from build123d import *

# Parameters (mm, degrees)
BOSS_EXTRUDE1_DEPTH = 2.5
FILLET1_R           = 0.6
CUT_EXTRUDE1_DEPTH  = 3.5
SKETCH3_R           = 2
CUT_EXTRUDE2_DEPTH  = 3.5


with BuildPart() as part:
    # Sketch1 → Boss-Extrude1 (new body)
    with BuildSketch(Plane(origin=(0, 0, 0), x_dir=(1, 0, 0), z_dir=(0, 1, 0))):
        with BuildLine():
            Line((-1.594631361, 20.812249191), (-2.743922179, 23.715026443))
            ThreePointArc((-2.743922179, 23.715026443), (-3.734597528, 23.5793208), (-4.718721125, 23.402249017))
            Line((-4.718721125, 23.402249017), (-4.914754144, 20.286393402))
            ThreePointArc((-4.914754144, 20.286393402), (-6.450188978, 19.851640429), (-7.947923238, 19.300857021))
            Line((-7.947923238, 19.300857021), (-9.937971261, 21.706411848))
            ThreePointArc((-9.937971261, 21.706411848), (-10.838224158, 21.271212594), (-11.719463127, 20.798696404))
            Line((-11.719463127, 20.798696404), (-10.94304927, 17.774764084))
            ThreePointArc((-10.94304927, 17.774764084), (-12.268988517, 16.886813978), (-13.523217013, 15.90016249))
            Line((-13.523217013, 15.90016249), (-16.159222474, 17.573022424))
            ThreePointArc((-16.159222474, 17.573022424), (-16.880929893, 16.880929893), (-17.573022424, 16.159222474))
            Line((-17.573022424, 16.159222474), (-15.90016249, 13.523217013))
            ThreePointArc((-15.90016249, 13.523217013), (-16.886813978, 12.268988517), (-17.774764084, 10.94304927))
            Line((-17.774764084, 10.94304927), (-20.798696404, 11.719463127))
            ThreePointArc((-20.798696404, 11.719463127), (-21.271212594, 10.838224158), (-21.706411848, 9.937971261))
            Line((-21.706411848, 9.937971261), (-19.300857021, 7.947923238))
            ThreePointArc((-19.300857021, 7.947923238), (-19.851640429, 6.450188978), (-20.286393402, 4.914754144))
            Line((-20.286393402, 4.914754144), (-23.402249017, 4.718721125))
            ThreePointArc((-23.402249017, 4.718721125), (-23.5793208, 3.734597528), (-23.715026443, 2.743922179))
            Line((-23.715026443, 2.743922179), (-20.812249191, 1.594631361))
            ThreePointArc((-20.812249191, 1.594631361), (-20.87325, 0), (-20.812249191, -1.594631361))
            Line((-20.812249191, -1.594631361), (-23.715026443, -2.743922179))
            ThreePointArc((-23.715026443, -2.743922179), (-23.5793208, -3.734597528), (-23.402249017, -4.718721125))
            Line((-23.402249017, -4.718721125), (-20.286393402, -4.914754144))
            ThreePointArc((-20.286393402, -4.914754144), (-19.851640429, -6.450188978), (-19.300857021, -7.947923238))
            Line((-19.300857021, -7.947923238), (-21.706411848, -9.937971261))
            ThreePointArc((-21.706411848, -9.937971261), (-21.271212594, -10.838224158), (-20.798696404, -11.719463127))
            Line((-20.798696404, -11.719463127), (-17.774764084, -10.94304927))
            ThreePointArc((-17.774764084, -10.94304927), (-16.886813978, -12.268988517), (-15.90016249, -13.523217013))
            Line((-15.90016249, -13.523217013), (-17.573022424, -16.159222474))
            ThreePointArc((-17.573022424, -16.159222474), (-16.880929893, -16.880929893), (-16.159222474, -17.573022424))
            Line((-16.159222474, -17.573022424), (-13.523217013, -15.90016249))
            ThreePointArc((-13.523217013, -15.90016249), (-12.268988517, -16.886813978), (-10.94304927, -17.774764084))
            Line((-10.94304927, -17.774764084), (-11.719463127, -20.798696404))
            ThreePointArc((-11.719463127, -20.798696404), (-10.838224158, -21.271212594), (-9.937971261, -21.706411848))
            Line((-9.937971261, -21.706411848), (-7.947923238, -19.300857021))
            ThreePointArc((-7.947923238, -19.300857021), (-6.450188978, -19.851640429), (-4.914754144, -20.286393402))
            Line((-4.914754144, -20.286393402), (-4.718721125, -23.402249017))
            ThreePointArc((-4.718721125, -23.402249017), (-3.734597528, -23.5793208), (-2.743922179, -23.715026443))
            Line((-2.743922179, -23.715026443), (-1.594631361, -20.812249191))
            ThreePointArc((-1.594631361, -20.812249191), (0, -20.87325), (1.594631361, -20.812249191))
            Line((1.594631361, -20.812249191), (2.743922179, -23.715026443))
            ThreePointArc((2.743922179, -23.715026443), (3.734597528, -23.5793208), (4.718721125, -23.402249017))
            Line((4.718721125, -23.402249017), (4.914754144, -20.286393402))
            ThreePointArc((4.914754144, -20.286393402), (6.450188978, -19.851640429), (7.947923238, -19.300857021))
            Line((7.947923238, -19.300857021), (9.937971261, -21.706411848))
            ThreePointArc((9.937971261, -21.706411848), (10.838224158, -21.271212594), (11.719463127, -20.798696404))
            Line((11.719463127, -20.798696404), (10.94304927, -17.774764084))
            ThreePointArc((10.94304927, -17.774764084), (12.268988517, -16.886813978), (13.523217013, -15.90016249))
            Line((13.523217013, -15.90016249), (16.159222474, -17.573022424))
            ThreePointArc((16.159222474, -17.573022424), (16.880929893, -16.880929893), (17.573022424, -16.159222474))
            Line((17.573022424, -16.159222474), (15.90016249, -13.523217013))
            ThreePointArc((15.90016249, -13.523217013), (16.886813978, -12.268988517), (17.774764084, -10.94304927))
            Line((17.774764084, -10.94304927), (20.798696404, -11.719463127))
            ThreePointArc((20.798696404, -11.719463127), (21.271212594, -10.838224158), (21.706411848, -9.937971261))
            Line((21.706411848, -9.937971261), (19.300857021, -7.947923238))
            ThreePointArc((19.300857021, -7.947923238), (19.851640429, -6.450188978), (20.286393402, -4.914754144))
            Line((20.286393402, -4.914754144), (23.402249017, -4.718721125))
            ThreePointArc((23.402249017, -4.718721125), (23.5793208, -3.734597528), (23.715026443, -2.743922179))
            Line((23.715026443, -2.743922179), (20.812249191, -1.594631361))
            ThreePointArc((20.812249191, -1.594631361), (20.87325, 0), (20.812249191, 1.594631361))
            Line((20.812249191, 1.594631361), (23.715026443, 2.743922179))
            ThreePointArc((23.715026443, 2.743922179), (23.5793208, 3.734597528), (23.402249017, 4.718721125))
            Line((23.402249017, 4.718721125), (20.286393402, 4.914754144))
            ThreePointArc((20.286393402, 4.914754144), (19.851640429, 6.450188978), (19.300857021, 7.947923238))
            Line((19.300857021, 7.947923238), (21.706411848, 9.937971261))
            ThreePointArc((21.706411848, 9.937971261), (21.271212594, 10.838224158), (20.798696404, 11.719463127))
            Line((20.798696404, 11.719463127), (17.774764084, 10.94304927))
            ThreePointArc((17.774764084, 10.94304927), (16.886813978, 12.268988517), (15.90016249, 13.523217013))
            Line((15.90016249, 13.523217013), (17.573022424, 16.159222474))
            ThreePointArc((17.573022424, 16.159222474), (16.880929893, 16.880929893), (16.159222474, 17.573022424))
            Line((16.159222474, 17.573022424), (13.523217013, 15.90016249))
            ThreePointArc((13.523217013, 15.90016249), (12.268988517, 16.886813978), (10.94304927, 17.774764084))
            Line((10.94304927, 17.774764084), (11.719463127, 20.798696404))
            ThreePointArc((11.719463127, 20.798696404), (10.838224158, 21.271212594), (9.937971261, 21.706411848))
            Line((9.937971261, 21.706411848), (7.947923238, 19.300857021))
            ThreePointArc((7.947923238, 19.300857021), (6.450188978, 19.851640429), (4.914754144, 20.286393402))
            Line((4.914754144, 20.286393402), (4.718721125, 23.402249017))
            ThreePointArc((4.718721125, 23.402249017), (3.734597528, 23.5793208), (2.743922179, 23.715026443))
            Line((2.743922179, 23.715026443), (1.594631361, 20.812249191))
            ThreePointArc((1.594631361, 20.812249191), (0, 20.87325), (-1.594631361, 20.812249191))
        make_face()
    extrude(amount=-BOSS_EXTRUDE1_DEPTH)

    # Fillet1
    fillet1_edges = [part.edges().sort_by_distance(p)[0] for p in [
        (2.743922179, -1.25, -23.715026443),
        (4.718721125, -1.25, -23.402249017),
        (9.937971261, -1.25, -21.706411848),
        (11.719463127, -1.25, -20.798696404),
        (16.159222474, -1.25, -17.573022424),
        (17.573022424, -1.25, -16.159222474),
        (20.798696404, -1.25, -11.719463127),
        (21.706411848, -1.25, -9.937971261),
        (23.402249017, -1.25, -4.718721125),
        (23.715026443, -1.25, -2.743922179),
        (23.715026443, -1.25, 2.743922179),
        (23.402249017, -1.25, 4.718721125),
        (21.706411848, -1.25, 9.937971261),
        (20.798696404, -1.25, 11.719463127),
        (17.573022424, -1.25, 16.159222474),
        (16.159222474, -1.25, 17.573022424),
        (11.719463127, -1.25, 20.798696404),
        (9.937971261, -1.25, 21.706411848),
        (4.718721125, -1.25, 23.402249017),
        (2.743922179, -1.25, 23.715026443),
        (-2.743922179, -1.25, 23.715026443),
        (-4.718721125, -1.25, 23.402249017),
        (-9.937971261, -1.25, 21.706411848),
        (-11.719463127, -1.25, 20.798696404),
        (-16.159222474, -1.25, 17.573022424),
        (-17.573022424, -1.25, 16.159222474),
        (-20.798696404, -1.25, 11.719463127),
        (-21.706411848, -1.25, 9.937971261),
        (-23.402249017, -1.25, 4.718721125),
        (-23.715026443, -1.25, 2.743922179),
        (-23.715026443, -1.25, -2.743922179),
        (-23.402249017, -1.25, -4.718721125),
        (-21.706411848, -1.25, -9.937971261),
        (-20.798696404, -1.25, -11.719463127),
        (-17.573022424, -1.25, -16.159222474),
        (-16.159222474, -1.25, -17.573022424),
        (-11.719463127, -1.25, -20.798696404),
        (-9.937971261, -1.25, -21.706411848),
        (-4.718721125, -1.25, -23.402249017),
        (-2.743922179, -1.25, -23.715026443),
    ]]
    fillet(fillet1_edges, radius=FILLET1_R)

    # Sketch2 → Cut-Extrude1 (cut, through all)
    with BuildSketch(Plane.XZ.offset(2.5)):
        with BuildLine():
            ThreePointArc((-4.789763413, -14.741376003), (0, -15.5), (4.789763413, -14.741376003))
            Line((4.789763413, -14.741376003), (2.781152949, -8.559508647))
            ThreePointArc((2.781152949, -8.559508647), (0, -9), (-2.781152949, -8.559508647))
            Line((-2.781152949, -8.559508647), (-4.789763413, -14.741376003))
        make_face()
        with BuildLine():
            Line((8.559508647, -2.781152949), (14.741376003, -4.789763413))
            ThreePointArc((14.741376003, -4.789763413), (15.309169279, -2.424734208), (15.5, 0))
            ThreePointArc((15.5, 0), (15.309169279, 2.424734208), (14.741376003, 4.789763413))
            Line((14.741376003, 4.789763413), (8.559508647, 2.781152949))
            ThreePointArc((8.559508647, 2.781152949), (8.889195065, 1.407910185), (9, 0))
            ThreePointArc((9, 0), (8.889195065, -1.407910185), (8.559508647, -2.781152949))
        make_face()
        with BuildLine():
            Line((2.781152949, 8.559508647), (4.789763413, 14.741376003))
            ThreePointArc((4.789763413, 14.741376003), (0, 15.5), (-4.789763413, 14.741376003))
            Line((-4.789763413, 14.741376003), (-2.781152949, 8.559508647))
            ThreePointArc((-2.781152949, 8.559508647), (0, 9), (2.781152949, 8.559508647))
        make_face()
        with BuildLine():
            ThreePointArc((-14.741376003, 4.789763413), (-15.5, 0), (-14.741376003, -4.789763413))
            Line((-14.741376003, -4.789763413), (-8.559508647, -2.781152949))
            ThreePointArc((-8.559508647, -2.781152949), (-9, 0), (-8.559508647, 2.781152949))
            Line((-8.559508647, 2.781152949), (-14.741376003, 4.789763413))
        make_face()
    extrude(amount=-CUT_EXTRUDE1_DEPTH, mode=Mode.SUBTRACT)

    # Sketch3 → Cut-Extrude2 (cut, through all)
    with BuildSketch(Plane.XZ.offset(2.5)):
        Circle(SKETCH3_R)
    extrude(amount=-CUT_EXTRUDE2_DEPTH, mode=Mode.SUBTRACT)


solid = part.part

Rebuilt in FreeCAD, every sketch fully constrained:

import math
import FreeCAD as App
import Part
import Sketcher
Q = App.Units.Quantity


def edges_at(feature, points):
    """Names of the edges that pass closest to the given points."""
    edges = feature.Shape.Edges
    near = lambda p: min(range(len(edges)), key=lambda i: edges[i].distToShape(Part.Vertex(*p))[0])
    return sorted({f"Edge{near(p) + 1}" for p in points})

doc = App.newDocument("Part")
body = doc.addObject("PartDesign::Body", "Body")

# Sketch on XZ plane
sketch1 = body.newObject("Sketcher::SketchObject", "Sketch")
sketch1.AttachmentSupport = (doc.getObject("XZ_Plane"), [""])
sketch1.MapMode = "FlatFace"
sketch1.addGeometry(Part.LineSegment(App.Vector(-1.6, -20.8, 0), App.Vector(-2.7, -23.7, 0)), False)
sketch1.addGeometry(Part.ArcOfCircle(Part.Circle(App.Vector(0, 0, 0), App.Vector(0, 0, 1), 23.9), math.radians(-101.4), math.radians(-96.6)), False)
sketch1.addGeometry(Part.LineSegment(App.Vector(-4.7, -23.4, 0), App.Vector(-4.9, -20.3, 0)), False)
sketch1.addGeometry(Part.ArcOfCircle(Part.Circle(App.Vector(0, 0, 0), App.Vector(0, 0, 1), 20.9), math.radians(-112.38), math.radians(-103.62)), False)
sketch1.addGeometry(Part.LineSegment(App.Vector(-7.9, -19.3, 0), App.Vector(-9.9, -21.7, 0)), False)
sketch1.addGeometry(Part.ArcOfCircle(Part.Circle(App.Vector(0, 0, 0), App.Vector(0, 0, 1), 23.9), math.radians(-119.4), math.radians(-114.6)), False)
sketch1.addGeometry(Part.LineSegment(App.Vector(-11.7, -20.8, 0), App.Vector(-10.9, -17.8, 0)), False)
sketch1.addGeometry(Part.ArcOfCircle(Part.Circle(App.Vector(0, 0, 0), App.Vector(0, 0, 1), 20.9), math.radians(-130.38), math.radians(-121.62)), False)
sketch1.addGeometry(Part.LineSegment(App.Vector(-13.5, -15.9, 0), App.Vector(-16.2, -17.6, 0)), False)
sketch1.addGeometry(Part.ArcOfCircle(Part.Circle(App.Vector(0, 0, 0), App.Vector(0, 0, 1), 23.9), math.radians(-137.4), math.radians(-132.6)), False)
sketch1.addGeometry(Part.LineSegment(App.Vector(-17.6, -16.2, 0), App.Vector(-15.9, -13.5, 0)), False)
sketch1.addGeometry(Part.ArcOfCircle(Part.Circle(App.Vector(0, 0, 0), App.Vector(0, 0, 1), 20.9), math.radians(-148.38), math.radians(-139.62)), False)
sketch1.addGeometry(Part.LineSegment(App.Vector(-17.8, -10.9, 0), App.Vector(-20.8, -11.7, 0)), False)
sketch1.addGeometry(Part.ArcOfCircle(Part.Circle(App.Vector(0, 0, 0), App.Vector(0, 0, 1), 23.9), math.radians(-155.4), math.radians(-150.6)), False)
sketch1.addGeometry(Part.LineSegment(App.Vector(-21.7, -9.9, 0), App.Vector(-19.3, -7.9, 0)), False)
sketch1.addGeometry(Part.ArcOfCircle(Part.Circle(App.Vector(0, 0, 0), App.Vector(0, 0, 1), 20.9), math.radians(-166.38), math.radians(-157.62)), False)
sketch1.addGeometry(Part.LineSegment(App.Vector(-20.3, -4.9, 0), App.Vector(-23.4, -4.7, 0)), False)
sketch1.addGeometry(Part.ArcOfCircle(Part.Circle(App.Vector(0, 0, 0), App.Vector(0, 0, 1), 23.9), math.radians(-173.4), math.radians(-168.6)), False)
sketch1.addGeometry(Part.LineSegment(App.Vector(-23.7, -2.7, 0), App.Vector(-20.8, -1.6, 0)), False)
sketch1.addGeometry(Part.ArcOfCircle(Part.Circle(App.Vector(0, 0, 0), App.Vector(0, 0, 1), 20.9), math.radians(175.62), math.radians(184.38)), False)
sketch1.addGeometry(Part.LineSegment(App.Vector(-20.8, 1.6, 0), App.Vector(-23.7, 2.7, 0)), False)
sketch1.addGeometry(Part.ArcOfCircle(Part.Circle(App.Vector(0, 0, 0), App.Vector(0, 0, 1), 23.9), math.radians(168.6), math.radians(173.4)), False)
sketch1.addGeometry(Part.LineSegment(App.Vector(-23.4, 4.7, 0), App.Vector(-20.3, 4.9, 0)), False)
sketch1.addGeometry(Part.ArcOfCircle(Part.Circle(App.Vector(0, 0, 0), App.Vector(0, 0, 1), 20.9), math.radians(157.62), math.radians(166.38)), False)
sketch1.addGeometry(Part.LineSegment(App.Vector(-19.3, 7.9, 0), App.Vector(-21.7, 9.9, 0)), False)
sketch1.addGeometry(Part.ArcOfCircle(Part.Circle(App.Vector(0, 0, 0), App.Vector(0, 0, 1), 23.9), math.radians(150.6), math.radians(155.4)), False)
sketch1.addGeometry(Part.LineSegment(App.Vector(-20.8, 11.7, 0), App.Vector(-17.8, 10.9, 0)), False)
sketch1.addGeometry(Part.ArcOfCircle(Part.Circle(App.Vector(0, 0, 0), App.Vector(0, 0, 1), 20.9), math.radians(139.62), math.radians(148.38)), False)
sketch1.addGeometry(Part.LineSegment(App.Vector(-15.9, 13.5, 0), App.Vector(-17.6, 16.2, 0)), False)
sketch1.addGeometry(Part.ArcOfCircle(Part.Circle(App.Vector(0, 0, 0), App.Vector(0, 0, 1), 23.9), math.radians(132.6), math.radians(137.4)), False)
sketch1.addGeometry(Part.LineSegment(App.Vector(-16.2, 17.6, 0), App.Vector(-13.5, 15.9, 0)), False)
sketch1.addGeometry(Part.ArcOfCircle(Part.Circle(App.Vector(0, 0, 0), App.Vector(0, 0, 1), 20.9), math.radians(121.62), math.radians(130.38)), False)
sketch1.addGeometry(Part.LineSegment(App.Vector(-10.9, 17.8, 0), App.Vector(-11.7, 20.8, 0)), False)
sketch1.addGeometry(Part.ArcOfCircle(Part.Circle(App.Vector(0, 0, 0), App.Vector(0, 0, 1), 23.9), math.radians(114.6), math.radians(119.4)), False)
sketch1.addGeometry(Part.LineSegment(App.Vector(-9.9, 21.7, 0), App.Vector(-7.9, 19.3, 0)), False)
sketch1.addGeometry(Part.ArcOfCircle(Part.Circle(App.Vector(0, 0, 0), App.Vector(0, 0, 1), 20.9), math.radians(103.62), math.radians(112.38)), False)
sketch1.addGeometry(Part.LineSegment(App.Vector(-4.9, 20.3, 0), App.Vector(-4.7, 23.4, 0)), False)
sketch1.addGeometry(Part.ArcOfCircle(Part.Circle(App.Vector(0, 0, 0), App.Vector(0, 0, 1), 23.9), math.radians(96.6), math.radians(101.4)), False)
sketch1.addGeometry(Part.LineSegment(App.Vector(-2.7, 23.7, 0), App.Vector(-1.6, 20.8, 0)), False)
sketch1.addGeometry(Part.ArcOfCircle(Part.Circle(App.Vector(0, 0, 0), App.Vector(0, 0, 1), 20.9), math.radians(85.62), math.radians(94.38)), False)
sketch1.addGeometry(Part.LineSegment(App.Vector(1.6, 20.8, 0), App.Vector(2.7, 23.7, 0)), False)
sketch1.addGeometry(Part.ArcOfCircle(Part.Circle(App.Vector(0, 0, 0), App.Vector(0, 0, 1), 23.9), math.radians(78.6), math.radians(83.4)), False)
sketch1.addGeometry(Part.LineSegment(App.Vector(4.7, 23.4, 0), App.Vector(4.9, 20.3, 0)), False)
sketch1.addGeometry(Part.ArcOfCircle(Part.Circle(App.Vector(0, 0, 0), App.Vector(0, 0, 1), 20.9), math.radians(67.62), math.radians(76.38)), False)
sketch1.addGeometry(Part.LineSegment(App.Vector(7.9, 19.3, 0), App.Vector(9.9, 21.7, 0)), False)
sketch1.addGeometry(Part.ArcOfCircle(Part.Circle(App.Vector(0, 0, 0), App.Vector(0, 0, 1), 23.9), math.radians(60.6), math.radians(65.4)), False)
sketch1.addGeometry(Part.LineSegment(App.Vector(11.7, 20.8, 0), App.Vector(10.9, 17.8, 0)), False)
sketch1.addGeometry(Part.ArcOfCircle(Part.Circle(App.Vector(0, 0, 0), App.Vector(0, 0, 1), 20.9), math.radians(49.62), math.radians(58.38)), False)
sketch1.addGeometry(Part.LineSegment(App.Vector(13.5, 15.9, 0), App.Vector(16.2, 17.6, 0)), False)
sketch1.addGeometry(Part.ArcOfCircle(Part.Circle(App.Vector(0, 0, 0), App.Vector(0, 0, 1), 23.9), math.radians(42.6), math.radians(47.4)), False)
sketch1.addGeometry(Part.LineSegment(App.Vector(17.6, 16.2, 0), App.Vector(15.9, 13.5, 0)), False)
sketch1.addGeometry(Part.ArcOfCircle(Part.Circle(App.Vector(0, 0, 0), App.Vector(0, 0, 1), 20.9), math.radians(31.62), math.radians(40.38)), False)
sketch1.addGeometry(Part.LineSegment(App.Vector(17.8, 10.9, 0), App.Vector(20.8, 11.7, 0)), False)
sketch1.addGeometry(Part.ArcOfCircle(Part.Circle(App.Vector(0, 0, 0), App.Vector(0, 0, 1), 23.9), math.radians(24.6), math.radians(29.4)), False)
sketch1.addGeometry(Part.LineSegment(App.Vector(21.7, 9.9, 0), App.Vector(19.3, 7.9, 0)), False)
sketch1.addGeometry(Part.ArcOfCircle(Part.Circle(App.Vector(0, 0, 0), App.Vector(0, 0, 1), 20.9), math.radians(13.62), math.radians(22.38)), False)
sketch1.addGeometry(Part.LineSegment(App.Vector(20.3, 4.9, 0), App.Vector(23.4, 4.7, 0)), False)
sketch1.addGeometry(Part.ArcOfCircle(Part.Circle(App.Vector(0, 0, 0), App.Vector(0, 0, 1), 23.9), math.radians(6.6), math.radians(11.4)), False)
sketch1.addGeometry(Part.LineSegment(App.Vector(23.7, 2.7, 0), App.Vector(20.8, 1.6, 0)), False)
sketch1.addGeometry(Part.ArcOfCircle(Part.Circle(App.Vector(0, 0, 0), App.Vector(0, 0, 1), 20.9), math.radians(-4.38), math.radians(4.38)), False)
sketch1.addGeometry(Part.LineSegment(App.Vector(20.8, -1.6, 0), App.Vector(23.7, -2.7, 0)), False)
sketch1.addGeometry(Part.ArcOfCircle(Part.Circle(App.Vector(0, 0, 0), App.Vector(0, 0, 1), 23.9), math.radians(-11.4), math.radians(-6.6)), False)
sketch1.addGeometry(Part.LineSegment(App.Vector(23.4, -4.7, 0), App.Vector(20.3, -4.9, 0)), False)
sketch1.addGeometry(Part.ArcOfCircle(Part.Circle(App.Vector(0, 0, 0), App.Vector(0, 0, 1), 20.9), math.radians(-22.38), math.radians(-13.62)), False)
sketch1.addGeometry(Part.LineSegment(App.Vector(19.3, -7.9, 0), App.Vector(21.7, -9.9, 0)), False)
sketch1.addGeometry(Part.ArcOfCircle(Part.Circle(App.Vector(0, 0, 0), App.Vector(0, 0, 1), 23.9), math.radians(-29.4), math.radians(-24.6)), False)
sketch1.addGeometry(Part.LineSegment(App.Vector(20.8, -11.7, 0), App.Vector(17.8, -10.9, 0)), False)
sketch1.addGeometry(Part.ArcOfCircle(Part.Circle(App.Vector(0, 0, 0), App.Vector(0, 0, 1), 20.9), math.radians(-40.38), math.radians(-31.62)), False)
sketch1.addGeometry(Part.LineSegment(App.Vector(15.9, -13.5, 0), App.Vector(17.6, -16.2, 0)), False)
sketch1.addGeometry(Part.ArcOfCircle(Part.Circle(App.Vector(0, 0, 0), App.Vector(0, 0, 1), 23.9), math.radians(-47.4), math.radians(-42.6)), False)
sketch1.addGeometry(Part.LineSegment(App.Vector(16.2, -17.6, 0), App.Vector(13.5, -15.9, 0)), False)
sketch1.addGeometry(Part.ArcOfCircle(Part.Circle(App.Vector(0, 0, 0), App.Vector(0, 0, 1), 20.9), math.radians(-58.38), math.radians(-49.62)), False)
sketch1.addGeometry(Part.LineSegment(App.Vector(10.9, -17.8, 0), App.Vector(11.7, -20.8, 0)), False)
sketch1.addGeometry(Part.ArcOfCircle(Part.Circle(App.Vector(0, 0, 0), App.Vector(0, 0, 1), 23.9), math.radians(-65.4), math.radians(-60.6)), False)
sketch1.addGeometry(Part.LineSegment(App.Vector(9.9, -21.7, 0), App.Vector(7.9, -19.3, 0)), False)
sketch1.addGeometry(Part.ArcOfCircle(Part.Circle(App.Vector(0, 0, 0), App.Vector(0, 0, 1), 20.9), math.radians(-76.38), math.radians(-67.62)), False)
sketch1.addGeometry(Part.LineSegment(App.Vector(4.9, -20.3, 0), App.Vector(4.7, -23.4, 0)), False)
sketch1.addGeometry(Part.ArcOfCircle(Part.Circle(App.Vector(0, 0, 0), App.Vector(0, 0, 1), 23.9), math.radians(-83.4), math.radians(-78.6)), False)
sketch1.addGeometry(Part.LineSegment(App.Vector(2.7, -23.7, 0), App.Vector(1.6, -20.8, 0)), False)
sketch1.addGeometry(Part.ArcOfCircle(Part.Circle(App.Vector(0, 0, 0), App.Vector(0, 0, 1), 20.9), math.radians(-94.38), math.radians(-85.62)), False)
sketch1.addConstraint(Sketcher.Constraint("Coincident", 0, 2, 1, 2))
sketch1.addConstraint(Sketcher.Constraint("Coincident", 1, 1, 2, 1))
sketch1.addConstraint(Sketcher.Constraint("Coincident", 2, 2, 3, 2))
sketch1.addConstraint(Sketcher.Constraint("Coincident", 3, 1, 4, 1))
sketch1.addConstraint(Sketcher.Constraint("Coincident", 4, 2, 5, 2))
sketch1.addConstraint(Sketcher.Constraint("Coincident", 5, 1, 6, 1))
sketch1.addConstraint(Sketcher.Constraint("Coincident", 6, 2, 7, 2))
sketch1.addConstraint(Sketcher.Constraint("Coincident", 7, 1, 8, 1))
sketch1.addConstraint(Sketcher.Constraint("Coincident", 8, 2, 9, 2))
sketch1.addConstraint(Sketcher.Constraint("Coincident", 9, 1, 10, 1))
sketch1.addConstraint(Sketcher.Constraint("Coincident", 10, 2, 11, 2))
sketch1.addConstraint(Sketcher.Constraint("Coincident", 11, 1, 12, 1))
sketch1.addConstraint(Sketcher.Constraint("Coincident", 12, 2, 13, 2))
sketch1.addConstraint(Sketcher.Constraint("Coincident", 13, 1, 14, 1))
sketch1.addConstraint(Sketcher.Constraint("Coincident", 14, 2, 15, 2))
sketch1.addConstraint(Sketcher.Constraint("Coincident", 15, 1, 16, 1))
sketch1.addConstraint(Sketcher.Constraint("Coincident", 16, 2, 17, 2))
sketch1.addConstraint(Sketcher.Constraint("Coincident", 17, 1, 18, 1))
sketch1.addConstraint(Sketcher.Constraint("Coincident", 18, 2, 19, 2))
sketch1.addConstraint(Sketcher.Constraint("Coincident", 19, 1, 20, 1))
sketch1.addConstraint(Sketcher.Constraint("Coincident", 20, 2, 21, 2))
sketch1.addConstraint(Sketcher.Constraint("Coincident", 21, 1, 22, 1))
sketch1.addConstraint(Sketcher.Constraint("Coincident", 22, 2, 23, 2))
sketch1.addConstraint(Sketcher.Constraint("Coincident", 23, 1, 24, 1))
sketch1.addConstraint(Sketcher.Constraint("Coincident", 24, 2, 25, 2))
sketch1.addConstraint(Sketcher.Constraint("Coincident", 25, 1, 26, 1))
sketch1.addConstraint(Sketcher.Constraint("Coincident", 26, 2, 27, 2))
sketch1.addConstraint(Sketcher.Constraint("Coincident", 27, 1, 28, 1))
sketch1.addConstraint(Sketcher.Constraint("Coincident", 28, 2, 29, 2))
sketch1.addConstraint(Sketcher.Constraint("Coincident", 29, 1, 30, 1))
sketch1.addConstraint(Sketcher.Constraint("Coincident", 30, 2, 31, 2))
sketch1.addConstraint(Sketcher.Constraint("Coincident", 31, 1, 32, 1))
sketch1.addConstraint(Sketcher.Constraint("Coincident", 32, 2, 33, 2))
sketch1.addConstraint(Sketcher.Constraint("Coincident", 33, 1, 34, 1))
sketch1.addConstraint(Sketcher.Constraint("Coincident", 34, 2, 35, 2))
sketch1.addConstraint(Sketcher.Constraint("Coincident", 35, 1, 36, 1))
sketch1.addConstraint(Sketcher.Constraint("Coincident", 36, 2, 37, 2))
sketch1.addConstraint(Sketcher.Constraint("Coincident", 37, 1, 38, 1))
sketch1.addConstraint(Sketcher.Constraint("Coincident", 38, 2, 39, 2))
sketch1.addConstraint(Sketcher.Constraint("Coincident", 39, 1, 40, 1))
sketch1.addConstraint(Sketcher.Constraint("Coincident", 40, 2, 41, 2))
sketch1.addConstraint(Sketcher.Constraint("Coincident", 41, 1, 42, 1))
sketch1.addConstraint(Sketcher.Constraint("Coincident", 42, 2, 43, 2))
sketch1.addConstraint(Sketcher.Constraint("Coincident", 43, 1, 44, 1))
sketch1.addConstraint(Sketcher.Constraint("Coincident", 44, 2, 45, 2))
sketch1.addConstraint(Sketcher.Constraint("Coincident", 45, 1, 46, 1))
sketch1.addConstraint(Sketcher.Constraint("Coincident", 46, 2, 47, 2))
sketch1.addConstraint(Sketcher.Constraint("Coincident", 47, 1, 48, 1))
sketch1.addConstraint(Sketcher.Constraint("Coincident", 48, 2, 49, 2))
sketch1.addConstraint(Sketcher.Constraint("Coincident", 49, 1, 50, 1))
sketch1.addConstraint(Sketcher.Constraint("Coincident", 50, 2, 51, 2))
sketch1.addConstraint(Sketcher.Constraint("Coincident", 51, 1, 52, 1))
sketch1.addConstraint(Sketcher.Constraint("Coincident", 52, 2, 53, 2))
sketch1.addConstraint(Sketcher.Constraint("Coincident", 53, 1, 54, 1))
sketch1.addConstraint(Sketcher.Constraint("Coincident", 54, 2, 55, 2))
sketch1.addConstraint(Sketcher.Constraint("Coincident", 55, 1, 56, 1))
sketch1.addConstraint(Sketcher.Constraint("Coincident", 56, 2, 57, 2))
sketch1.addConstraint(Sketcher.Constraint("Coincident", 57, 1, 58, 1))
sketch1.addConstraint(Sketcher.Constraint("Coincident", 58, 2, 59, 2))
sketch1.addConstraint(Sketcher.Constraint("Coincident", 59, 1, 60, 1))
sketch1.addConstraint(Sketcher.Constraint("Coincident", 60, 2, 61, 2))
sketch1.addConstraint(Sketcher.Constraint("Coincident", 61, 1, 62, 1))
sketch1.addConstraint(Sketcher.Constraint("Coincident", 62, 2, 63, 2))
sketch1.addConstraint(Sketcher.Constraint("Coincident", 63, 1, 64, 1))
sketch1.addConstraint(Sketcher.Constraint("Coincident", 64, 2, 65, 2))
sketch1.addConstraint(Sketcher.Constraint("Coincident", 65, 1, 66, 1))
sketch1.addConstraint(Sketcher.Constraint("Coincident", 66, 2, 67, 2))
sketch1.addConstraint(Sketcher.Constraint("Coincident", 67, 1, 68, 1))
sketch1.addConstraint(Sketcher.Constraint("Coincident", 68, 2, 69, 2))
sketch1.addConstraint(Sketcher.Constraint("Coincident", 69, 1, 70, 1))
sketch1.addConstraint(Sketcher.Constraint("Coincident", 70, 2, 71, 2))
sketch1.addConstraint(Sketcher.Constraint("Coincident", 71, 1, 72, 1))
sketch1.addConstraint(Sketcher.Constraint("Coincident", 72, 2, 73, 2))
sketch1.addConstraint(Sketcher.Constraint("Coincident", 73, 1, 74, 1))
sketch1.addConstraint(Sketcher.Constraint("Coincident", 74, 2, 75, 2))
sketch1.addConstraint(Sketcher.Constraint("Coincident", 75, 1, 76, 1))
sketch1.addConstraint(Sketcher.Constraint("Coincident", 76, 2, 77, 2))
sketch1.addConstraint(Sketcher.Constraint("Coincident", 77, 1, 78, 1))
sketch1.addConstraint(Sketcher.Constraint("Coincident", 78, 2, 79, 2))
sketch1.addConstraint(Sketcher.Constraint("Coincident", 79, 1, 0, 1))
sketch1.addConstraint(Sketcher.Constraint("Coincident", 1, 3, -1, 1))
sketch1.addConstraint(Sketcher.Constraint("Coincident", 3, 3, -1, 1))
sketch1.addConstraint(Sketcher.Constraint("Coincident", 5, 3, -1, 1))
sketch1.addConstraint(Sketcher.Constraint("Coincident", 7, 3, -1, 1))
sketch1.addConstraint(Sketcher.Constraint("Coincident", 9, 3, -1, 1))
sketch1.addConstraint(Sketcher.Constraint("Coincident", 11, 3, -1, 1))
sketch1.addConstraint(Sketcher.Constraint("Coincident", 13, 3, -1, 1))
sketch1.addConstraint(Sketcher.Constraint("Coincident", 15, 3, -1, 1))
sketch1.addConstraint(Sketcher.Constraint("Coincident", 17, 3, -1, 1))
sketch1.addConstraint(Sketcher.Constraint("Coincident", 19, 3, -1, 1))
sketch1.addConstraint(Sketcher.Constraint("Coincident", 21, 3, -1, 1))
sketch1.addConstraint(Sketcher.Constraint("Coincident", 23, 3, -1, 1))
sketch1.addConstraint(Sketcher.Constraint("Coincident", 25, 3, -1, 1))
sketch1.addConstraint(Sketcher.Constraint("Coincident", 27, 3, -1, 1))
sketch1.addConstraint(Sketcher.Constraint("Coincident", 29, 3, -1, 1))
sketch1.addConstraint(Sketcher.Constraint("Coincident", 31, 3, -1, 1))
sketch1.addConstraint(Sketcher.Constraint("Coincident", 33, 3, -1, 1))
sketch1.addConstraint(Sketcher.Constraint("Coincident", 35, 3, -1, 1))
sketch1.addConstraint(Sketcher.Constraint("Coincident", 37, 3, -1, 1))
sketch1.addConstraint(Sketcher.Constraint("Coincident", 39, 3, -1, 1))
sketch1.addConstraint(Sketcher.Constraint("Coincident", 41, 3, -1, 1))
sketch1.addConstraint(Sketcher.Constraint("Coincident", 43, 3, -1, 1))
sketch1.addConstraint(Sketcher.Constraint("Coincident", 45, 3, -1, 1))
sketch1.addConstraint(Sketcher.Constraint("Coincident", 47, 3, -1, 1))
sketch1.addConstraint(Sketcher.Constraint("Coincident", 49, 3, -1, 1))
sketch1.addConstraint(Sketcher.Constraint("Coincident", 51, 3, -1, 1))
sketch1.addConstraint(Sketcher.Constraint("Coincident", 53, 3, -1, 1))
sketch1.addConstraint(Sketcher.Constraint("Coincident", 55, 3, -1, 1))
sketch1.addConstraint(Sketcher.Constraint("Coincident", 57, 3, -1, 1))
sketch1.addConstraint(Sketcher.Constraint("Coincident", 59, 3, -1, 1))
sketch1.addConstraint(Sketcher.Constraint("Coincident", 61, 3, -1, 1))
sketch1.addConstraint(Sketcher.Constraint("Coincident", 63, 3, -1, 1))
sketch1.addConstraint(Sketcher.Constraint("Coincident", 65, 3, -1, 1))
sketch1.addConstraint(Sketcher.Constraint("Coincident", 67, 3, -1, 1))
sketch1.addConstraint(Sketcher.Constraint("Coincident", 69, 3, -1, 1))
sketch1.addConstraint(Sketcher.Constraint("Coincident", 71, 3, -1, 1))
sketch1.addConstraint(Sketcher.Constraint("Coincident", 73, 3, -1, 1))
sketch1.addConstraint(Sketcher.Constraint("Coincident", 75, 3, -1, 1))
sketch1.addConstraint(Sketcher.Constraint("Coincident", 77, 3, -1, 1))
sketch1.addConstraint(Sketcher.Constraint("Coincident", 79, 3, -1, 1))
sketch1.addConstraint(Sketcher.Constraint("Equal", 1, 5))
sketch1.addConstraint(Sketcher.Constraint("Equal", 3, 7))
sketch1.addConstraint(Sketcher.Constraint("Equal", 5, 9))
sketch1.addConstraint(Sketcher.Constraint("Equal", 7, 11))
sketch1.addConstraint(Sketcher.Constraint("Equal", 9, 13))
sketch1.addConstraint(Sketcher.Constraint("Equal", 11, 15))
sketch1.addConstraint(Sketcher.Constraint("Equal", 13, 17))
sketch1.addConstraint(Sketcher.Constraint("Equal", 15, 19))
sketch1.addConstraint(Sketcher.Constraint("Equal", 17, 21))
sketch1.addConstraint(Sketcher.Constraint("Equal", 19, 23))
sketch1.addConstraint(Sketcher.Constraint("Equal", 21, 25))
sketch1.addConstraint(Sketcher.Constraint("Equal", 23, 27))
sketch1.addConstraint(Sketcher.Constraint("Equal", 25, 29))
sketch1.addConstraint(Sketcher.Constraint("Equal", 27, 31))
sketch1.addConstraint(Sketcher.Constraint("Equal", 29, 33))
sketch1.addConstraint(Sketcher.Constraint("Equal", 31, 35))
sketch1.addConstraint(Sketcher.Constraint("Equal", 33, 37))
sketch1.addConstraint(Sketcher.Constraint("Equal", 35, 39))
sketch1.addConstraint(Sketcher.Constraint("Equal", 37, 41))
sketch1.addConstraint(Sketcher.Constraint("Equal", 39, 43))
sketch1.addConstraint(Sketcher.Constraint("Equal", 41, 45))
sketch1.addConstraint(Sketcher.Constraint("Equal", 43, 47))
sketch1.addConstraint(Sketcher.Constraint("Equal", 45, 49))
sketch1.addConstraint(Sketcher.Constraint("Equal", 47, 51))
sketch1.addConstraint(Sketcher.Constraint("Equal", 49, 53))
sketch1.addConstraint(Sketcher.Constraint("Equal", 51, 55))
sketch1.addConstraint(Sketcher.Constraint("Equal", 53, 57))
sketch1.addConstraint(Sketcher.Constraint("Equal", 55, 59))
sketch1.addConstraint(Sketcher.Constraint("Equal", 57, 61))
sketch1.addConstraint(Sketcher.Constraint("Equal", 59, 63))
sketch1.addConstraint(Sketcher.Constraint("Equal", 61, 65))
sketch1.addConstraint(Sketcher.Constraint("Equal", 63, 67))
sketch1.addConstraint(Sketcher.Constraint("Equal", 65, 69))
sketch1.addConstraint(Sketcher.Constraint("Equal", 67, 71))
sketch1.addConstraint(Sketcher.Constraint("Equal", 69, 73))
sketch1.addConstraint(Sketcher.Constraint("Equal", 71, 75))
sketch1.addConstraint(Sketcher.Constraint("Equal", 73, 77))
sketch1.addConstraint(Sketcher.Constraint("Equal", 75, 79))
sketch1.addConstraint(Sketcher.Constraint("Perpendicular", 0, 20))
sketch1.addConstraint(Sketcher.Constraint("Perpendicular", 2, 22))
sketch1.addConstraint(Sketcher.Constraint("Perpendicular", 4, 24))
sketch1.addConstraint(Sketcher.Constraint("Perpendicular", 6, 26))
sketch1.addConstraint(Sketcher.Constraint("Perpendicular", 8, 28))
sketch1.addConstraint(Sketcher.Constraint("Perpendicular", 10, 30))
sketch1.addConstraint(Sketcher.Constraint("Perpendicular", 12, 32))
sketch1.addConstraint(Sketcher.Constraint("Perpendicular", 14, 34))
sketch1.addConstraint(Sketcher.Constraint("Perpendicular", 16, 36))
sketch1.addConstraint(Sketcher.Constraint("Perpendicular", 18, 38))
sketch1.addConstraint(Sketcher.Constraint("Perpendicular", 20, 40))
sketch1.addConstraint(Sketcher.Constraint("Perpendicular", 22, 42))
sketch1.addConstraint(Sketcher.Constraint("Perpendicular", 24, 44))
sketch1.addConstraint(Sketcher.Constraint("Perpendicular", 26, 46))
sketch1.addConstraint(Sketcher.Constraint("Perpendicular", 28, 48))
sketch1.addConstraint(Sketcher.Constraint("Perpendicular", 30, 50))
sketch1.addConstraint(Sketcher.Constraint("Perpendicular", 32, 52))
sketch1.addConstraint(Sketcher.Constraint("Perpendicular", 34, 54))
sketch1.addConstraint(Sketcher.Constraint("Perpendicular", 36, 56))
sketch1.addConstraint(Sketcher.Constraint("Perpendicular", 38, 58))
sketch1.addConstraint(Sketcher.Constraint("Perpendicular", 40, 60))
sketch1.addConstraint(Sketcher.Constraint("Perpendicular", 42, 62))
sketch1.addConstraint(Sketcher.Constraint("Perpendicular", 44, 64))
sketch1.addConstraint(Sketcher.Constraint("Perpendicular", 46, 66))
sketch1.addConstraint(Sketcher.Constraint("Perpendicular", 48, 68))
sketch1.addConstraint(Sketcher.Constraint("Perpendicular", 50, 70))
sketch1.addConstraint(Sketcher.Constraint("Perpendicular", 52, 72))
sketch1.addConstraint(Sketcher.Constraint("Perpendicular", 54, 74))
sketch1.addConstraint(Sketcher.Constraint("Perpendicular", 56, 76))
sketch1.addConstraint(Sketcher.Constraint("Perpendicular", 58, 78))
sketch1.addConstraint(Sketcher.Constraint("Horizontal", 38, 2, 39, 1))
sketch1.addConstraint(Sketcher.Constraint("Horizontal", 37, 1, 40, 2))
sketch1.addConstraint(Sketcher.Constraint("Horizontal", 36, 2, 41, 1))
sketch1.addConstraint(Sketcher.Constraint("Horizontal", 35, 1, 42, 2))
sketch1.addConstraint(Sketcher.Constraint("Horizontal", 34, 2, 43, 1))
sketch1.addConstraint(Sketcher.Constraint("Horizontal", 33, 1, 44, 2))
sketch1.addConstraint(Sketcher.Constraint("Horizontal", 32, 2, 45, 1))
sketch1.addConstraint(Sketcher.Constraint("Horizontal", 31, 1, 46, 2))
sketch1.addConstraint(Sketcher.Constraint("Horizontal", 30, 2, 47, 1))
sketch1.addConstraint(Sketcher.Constraint("Horizontal", 29, 1, 48, 2))
sketch1.addConstraint(Sketcher.Constraint("Horizontal", 28, 2, 49, 1))
sketch1.addConstraint(Sketcher.Constraint("Horizontal", 26, 2, 51, 1))
sketch1.addConstraint(Sketcher.Constraint("Horizontal", 24, 2, 53, 1))
sketch1.addConstraint(Sketcher.Constraint("Horizontal", 22, 2, 55, 1))
sketch1.addConstraint(Sketcher.Constraint("Horizontal", 20, 2, 57, 1))
sketch1.addConstraint(Sketcher.Constraint("Horizontal", 18, 2, 59, 1))
sketch1.addConstraint(Sketcher.Constraint("Horizontal", 16, 2, 61, 1))
sketch1.addConstraint(Sketcher.Constraint("Horizontal", 14, 2, 63, 1))
sketch1.addConstraint(Sketcher.Constraint("Horizontal", 12, 2, 65, 1))
sketch1.addConstraint(Sketcher.Constraint("Horizontal", 10, 2, 67, 1))
sketch1.addConstraint(Sketcher.Constraint("Horizontal", 8, 2, 69, 1))
sketch1.addConstraint(Sketcher.Constraint("Horizontal", 6, 2, 71, 1))
sketch1.addConstraint(Sketcher.Constraint("Horizontal", 4, 2, 73, 1))
sketch1.addConstraint(Sketcher.Constraint("Horizontal", 2, 2, 75, 1))
sketch1.addConstraint(Sketcher.Constraint("Horizontal", 0, 2, 77, 1))
sketch1.addConstraint(Sketcher.Constraint("Vertical", 18, 2, 19, 1))
sketch1.addConstraint(Sketcher.Constraint("Vertical", 16, 2, 21, 1))
sketch1.addConstraint(Sketcher.Constraint("Vertical", 14, 2, 23, 1))
sketch1.addConstraint(Sketcher.Constraint("Vertical", 12, 2, 25, 1))
sketch1.addConstraint(Sketcher.Constraint("Vertical", 10, 2, 27, 1))
sketch1.addConstraint(Sketcher.Constraint("Vertical", 8, 2, 29, 1))
sketch1.addConstraint(Sketcher.Constraint("Vertical", 6, 2, 31, 1))
sketch1.addConstraint(Sketcher.Constraint("Vertical", 4, 2, 33, 1))
sketch1.addConstraint(Sketcher.Constraint("Vertical", 2, 2, 35, 1))
sketch1.addConstraint(Sketcher.Constraint("Vertical", 0, 2, 37, 1))
sketch1.addConstraint(Sketcher.Constraint("Equal", 0, 2))
sketch1.addConstraint(Sketcher.Constraint("Equal", 2, 4))
sketch1.addConstraint(Sketcher.Constraint("Equal", 4, 6))
sketch1.addConstraint(Sketcher.Constraint("Equal", 6, 8))
sketch1.addConstraint(Sketcher.Constraint("Equal", 8, 10))
sketch1.addConstraint(Sketcher.Constraint("Equal", 10, 12))
sketch1.addConstraint(Sketcher.Constraint("Equal", 12, 14))
sketch1.addConstraint(Sketcher.Constraint("Equal", 14, 16))
sketch1.addConstraint(Sketcher.Constraint("Equal", 16, 18))
sketch1.addConstraint(Sketcher.Constraint("Angle", 0, Q("-111.6 deg")))
sketch1.addConstraint(Sketcher.Constraint("Angle", 2, Q("93.6 deg")))
sketch1.addConstraint(Sketcher.Constraint("Angle", 4, Q("-129.6 deg")))
sketch1.addConstraint(Sketcher.Constraint("Angle", 6, Q("75.6 deg")))
sketch1.addConstraint(Sketcher.Constraint("Angle", 8, Q("-147.6 deg")))
sketch1.addConstraint(Sketcher.Constraint("Radius", 1, Q("23.873241 mm")))
sketch1.addConstraint(Sketcher.Constraint("Radius", 3, Q("20.87325 mm")))
sketch1.addConstraint(Sketcher.Constraint("DistanceX", 1, 1, -1, 1, Q("4.718721 mm")))
pad1 = body.newObject("PartDesign::Pad", "Pad")
pad1.Profile = sketch1
pad1.Length = 2.5
doc.recompute()

fillet = body.newObject("PartDesign::Fillet", "Fillet")
fillet.Base = (pad1, edges_at(pad1, [
    (2.744, -1.25, -23.715),
    (4.719, -1.25, -23.402),
    (9.938, -1.25, -21.706),
    (11.719, -1.25, -20.799),
    (16.159, -1.25, -17.573),
    (17.573, -1.25, -16.159),
    (20.799, -1.25, -11.719),
    (21.706, -1.25, -9.938),
    (23.402, -1.25, -4.719),
    (23.715, -1.25, -2.744),
    (23.715, -1.25, 2.744),
    (23.402, -1.25, 4.719),
    (21.706, -1.25, 9.938),
    (20.799, -1.25, 11.719),
    (17.573, -1.25, 16.159),
    (16.159, -1.25, 17.573),
    (11.719, -1.25, 20.799),
    (9.938, -1.25, 21.706),
    (4.719, -1.25, 23.402),
    (2.744, -1.25, 23.715),
    (-2.744, -1.25, 23.715),
    (-4.719, -1.25, 23.402),
    (-9.938, -1.25, 21.706),
    (-11.719, -1.25, 20.799),
    (-16.159, -1.25, 17.573),
    (-17.573, -1.25, 16.159),
    (-20.799, -1.25, 11.719),
    (-21.706, -1.25, 9.938),
    (-23.402, -1.25, 4.719),
    (-23.715, -1.25, 2.744),
    (-23.715, -1.25, -2.744),
    (-23.402, -1.25, -4.719),
    (-21.706, -1.25, -9.938),
    (-20.799, -1.25, -11.719),
    (-17.573, -1.25, -16.159),
    (-16.159, -1.25, -17.573),
    (-11.719, -1.25, -20.799),
    (-9.938, -1.25, -21.706),
    (-4.719, -1.25, -23.402),
    (-2.744, -1.25, -23.715),
]))
fillet.Radius = 0.6

# Sketch on XZ plane
sketch2 = body.newObject("Sketcher::SketchObject", "Sketch001")
sketch2.AttachmentSupport = (doc.getObject("XZ_Plane"), [""])
sketch2.MapMode = "FlatFace"
sketch2.AttachmentOffset = App.Placement(App.Vector(0, 0, 2.5), App.Rotation())
sketch2.addGeometry(Part.ArcOfCircle(Part.Circle(App.Vector(0, 0, 0), App.Vector(0, 0, 1), 15.5), math.radians(-108), math.radians(-72)), False)
sketch2.addGeometry(Part.LineSegment(App.Vector(4.8, -14.7, 0), App.Vector(2.8, -8.6, 0)), False)
sketch2.addGeometry(Part.ArcOfCircle(Part.Circle(App.Vector(0, 0, 0), App.Vector(0, 0, 1), 9), math.radians(-108), math.radians(-72)), False)
sketch2.addGeometry(Part.LineSegment(App.Vector(-2.8, -8.6, 0), App.Vector(-4.8, -14.7, 0)), False)
sketch2.addGeometry(Part.LineSegment(App.Vector(8.6, -2.8, 0), App.Vector(14.7, -4.8, 0)), False)
sketch2.addGeometry(Part.ArcOfCircle(Part.Circle(App.Vector(0, 0, 0), App.Vector(0, 0, 1), 15.5), math.radians(-18), math.radians(0)), False)
sketch2.addGeometry(Part.ArcOfCircle(Part.Circle(App.Vector(0, 0, 0), App.Vector(0, 0, 1), 15.5), math.radians(0), math.radians(18)), False)
sketch2.addGeometry(Part.LineSegment(App.Vector(14.7, 4.8, 0), App.Vector(8.6, 2.8, 0)), False)
sketch2.addGeometry(Part.ArcOfCircle(Part.Circle(App.Vector(0, 0, 0), App.Vector(0, 0, 1), 9), math.radians(0), math.radians(18)), False)
sketch2.addGeometry(Part.ArcOfCircle(Part.Circle(App.Vector(0, 0, 0), App.Vector(0, 0, 1), 9), math.radians(-18), math.radians(0)), False)
sketch2.addGeometry(Part.LineSegment(App.Vector(2.8, 8.6, 0), App.Vector(4.8, 14.7, 0)), False)
sketch2.addGeometry(Part.ArcOfCircle(Part.Circle(App.Vector(0, 0, 0), App.Vector(0, 0, 1), 15.5), math.radians(72), math.radians(108)), False)
sketch2.addGeometry(Part.LineSegment(App.Vector(-4.8, 14.7, 0), App.Vector(-2.8, 8.6, 0)), False)
sketch2.addGeometry(Part.ArcOfCircle(Part.Circle(App.Vector(0, 0, 0), App.Vector(0, 0, 1), 9), math.radians(72), math.radians(108)), False)
sketch2.addGeometry(Part.ArcOfCircle(Part.Circle(App.Vector(0, 0, 0), App.Vector(0, 0, 1), 15.5), math.radians(162), math.radians(198)), False)
sketch2.addGeometry(Part.LineSegment(App.Vector(-14.7, -4.8, 0), App.Vector(-8.6, -2.8, 0)), False)
sketch2.addGeometry(Part.ArcOfCircle(Part.Circle(App.Vector(0, 0, 0), App.Vector(0, 0, 1), 9), math.radians(162), math.radians(198)), False)
sketch2.addGeometry(Part.LineSegment(App.Vector(-8.6, 2.8, 0), App.Vector(-14.7, 4.8, 0)), False)
sketch2.addConstraint(Sketcher.Constraint("Coincident", 0, 2, 1, 1))
sketch2.addConstraint(Sketcher.Constraint("Coincident", 1, 2, 2, 2))
sketch2.addConstraint(Sketcher.Constraint("Coincident", 2, 1, 3, 1))
sketch2.addConstraint(Sketcher.Constraint("Coincident", 3, 2, 0, 1))
sketch2.addConstraint(Sketcher.Constraint("Coincident", 4, 2, 5, 1))
sketch2.addConstraint(Sketcher.Constraint("Tangent", 5, 2, 6, 1))
sketch2.addConstraint(Sketcher.Constraint("Coincident", 6, 2, 7, 1))
sketch2.addConstraint(Sketcher.Constraint("Coincident", 7, 2, 8, 2))
sketch2.addConstraint(Sketcher.Constraint("Tangent", 8, 1, 9, 2))
sketch2.addConstraint(Sketcher.Constraint("Coincident", 9, 1, 4, 1))
sketch2.addConstraint(Sketcher.Constraint("Coincident", 10, 2, 11, 1))
sketch2.addConstraint(Sketcher.Constraint("Coincident", 11, 2, 12, 1))
sketch2.addConstraint(Sketcher.Constraint("Coincident", 12, 2, 13, 2))
sketch2.addConstraint(Sketcher.Constraint("Coincident", 13, 1, 10, 1))
sketch2.addConstraint(Sketcher.Constraint("Coincident", 14, 2, 15, 1))
sketch2.addConstraint(Sketcher.Constraint("Coincident", 15, 2, 16, 2))
sketch2.addConstraint(Sketcher.Constraint("Coincident", 16, 1, 17, 1))
sketch2.addConstraint(Sketcher.Constraint("Coincident", 17, 2, 14, 1))
sketch2.addConstraint(Sketcher.Constraint("Coincident", 0, 3, -1, 1))
sketch2.addConstraint(Sketcher.Constraint("Coincident", 2, 3, -1, 1))
sketch2.addConstraint(Sketcher.Constraint("Coincident", 5, 3, -1, 1))
sketch2.addConstraint(Sketcher.Constraint("Coincident", 8, 3, -1, 1))
sketch2.addConstraint(Sketcher.Constraint("Coincident", 11, 3, -1, 1))
sketch2.addConstraint(Sketcher.Constraint("Coincident", 13, 3, -1, 1))
sketch2.addConstraint(Sketcher.Constraint("Coincident", 14, 3, -1, 1))
sketch2.addConstraint(Sketcher.Constraint("Coincident", 16, 3, -1, 1))
sketch2.addConstraint(Sketcher.Constraint("Equal", 0, 5))
sketch2.addConstraint(Sketcher.Constraint("Equal", 5, 6))
sketch2.addConstraint(Sketcher.Constraint("Equal", 2, 8))
sketch2.addConstraint(Sketcher.Constraint("Equal", 8, 9))
sketch2.addConstraint(Sketcher.Constraint("Equal", 6, 11))
sketch2.addConstraint(Sketcher.Constraint("Equal", 9, 13))
sketch2.addConstraint(Sketcher.Constraint("Equal", 11, 14))
sketch2.addConstraint(Sketcher.Constraint("Equal", 13, 16))
sketch2.addConstraint(Sketcher.Constraint("PointOnObject", 5, 2, -1))
sketch2.addConstraint(Sketcher.Constraint("PointOnObject", 8, 1, -1))
sketch2.addConstraint(Sketcher.Constraint("Perpendicular", 3, 4))
sketch2.addConstraint(Sketcher.Constraint("Perpendicular", 1, 7))
sketch2.addConstraint(Sketcher.Constraint("Perpendicular", 4, 10))
sketch2.addConstraint(Sketcher.Constraint("Perpendicular", 7, 12))
sketch2.addConstraint(Sketcher.Constraint("Perpendicular", 12, 15))
sketch2.addConstraint(Sketcher.Constraint("Perpendicular", 10, 17))
sketch2.addConstraint(Sketcher.Constraint("Horizontal", 1, 2, 2, 1))
sketch2.addConstraint(Sketcher.Constraint("Horizontal", 0, 2, 3, 2))
sketch2.addConstraint(Sketcher.Constraint("Horizontal", 10, 2, 11, 2))
sketch2.addConstraint(Sketcher.Constraint("Horizontal", 4, 2, 14, 2))
sketch2.addConstraint(Sketcher.Constraint("Horizontal", 7, 2, 16, 1))
sketch2.addConstraint(Sketcher.Constraint("Vertical", 4, 2, 6, 2))
sketch2.addConstraint(Sketcher.Constraint("Vertical", 0, 2, 10, 2))
sketch2.addConstraint(Sketcher.Constraint("Radius", 2, Q("9 mm")))
sketch2.addConstraint(Sketcher.Constraint("Radius", 0, Q("15.5 mm")))
sketch2.addConstraint(Sketcher.Constraint("Angle", 1, Q("108 deg")))
sketch2.addConstraint(Sketcher.Constraint("DistanceY", 1, 2, -1, 1, Q("8.559509 mm")))
sketch2.addConstraint(Sketcher.Constraint("DistanceX", -1, 1, 7, 2, Q("8.559509 mm")))
pocket1 = body.newObject("PartDesign::Pocket", "Pocket")
pocket1.Profile = sketch2
pocket1.Type = "ThroughAll"

# Sketch on XZ plane
sketch3 = body.newObject("Sketcher::SketchObject", "Sketch002")
sketch3.AttachmentSupport = (doc.getObject("XZ_Plane"), [""])
sketch3.MapMode = "FlatFace"
sketch3.AttachmentOffset = App.Placement(App.Vector(0, 0, 2.5), App.Rotation())
sketch3.addGeometry(Part.Circle(App.Vector(0, 0, 0), App.Vector(0, 0, 1), 2), False)
sketch3.addConstraint(Sketcher.Constraint("Coincident", 0, 3, -1, 1))
sketch3.addConstraint(Sketcher.Constraint("Diameter", 0, Q("4 mm")))
pocket2 = body.newObject("PartDesign::Pocket", "Pocket001")
pocket2.Profile = sketch3
pocket2.Type = "ThroughAll"

doc.recompute()
